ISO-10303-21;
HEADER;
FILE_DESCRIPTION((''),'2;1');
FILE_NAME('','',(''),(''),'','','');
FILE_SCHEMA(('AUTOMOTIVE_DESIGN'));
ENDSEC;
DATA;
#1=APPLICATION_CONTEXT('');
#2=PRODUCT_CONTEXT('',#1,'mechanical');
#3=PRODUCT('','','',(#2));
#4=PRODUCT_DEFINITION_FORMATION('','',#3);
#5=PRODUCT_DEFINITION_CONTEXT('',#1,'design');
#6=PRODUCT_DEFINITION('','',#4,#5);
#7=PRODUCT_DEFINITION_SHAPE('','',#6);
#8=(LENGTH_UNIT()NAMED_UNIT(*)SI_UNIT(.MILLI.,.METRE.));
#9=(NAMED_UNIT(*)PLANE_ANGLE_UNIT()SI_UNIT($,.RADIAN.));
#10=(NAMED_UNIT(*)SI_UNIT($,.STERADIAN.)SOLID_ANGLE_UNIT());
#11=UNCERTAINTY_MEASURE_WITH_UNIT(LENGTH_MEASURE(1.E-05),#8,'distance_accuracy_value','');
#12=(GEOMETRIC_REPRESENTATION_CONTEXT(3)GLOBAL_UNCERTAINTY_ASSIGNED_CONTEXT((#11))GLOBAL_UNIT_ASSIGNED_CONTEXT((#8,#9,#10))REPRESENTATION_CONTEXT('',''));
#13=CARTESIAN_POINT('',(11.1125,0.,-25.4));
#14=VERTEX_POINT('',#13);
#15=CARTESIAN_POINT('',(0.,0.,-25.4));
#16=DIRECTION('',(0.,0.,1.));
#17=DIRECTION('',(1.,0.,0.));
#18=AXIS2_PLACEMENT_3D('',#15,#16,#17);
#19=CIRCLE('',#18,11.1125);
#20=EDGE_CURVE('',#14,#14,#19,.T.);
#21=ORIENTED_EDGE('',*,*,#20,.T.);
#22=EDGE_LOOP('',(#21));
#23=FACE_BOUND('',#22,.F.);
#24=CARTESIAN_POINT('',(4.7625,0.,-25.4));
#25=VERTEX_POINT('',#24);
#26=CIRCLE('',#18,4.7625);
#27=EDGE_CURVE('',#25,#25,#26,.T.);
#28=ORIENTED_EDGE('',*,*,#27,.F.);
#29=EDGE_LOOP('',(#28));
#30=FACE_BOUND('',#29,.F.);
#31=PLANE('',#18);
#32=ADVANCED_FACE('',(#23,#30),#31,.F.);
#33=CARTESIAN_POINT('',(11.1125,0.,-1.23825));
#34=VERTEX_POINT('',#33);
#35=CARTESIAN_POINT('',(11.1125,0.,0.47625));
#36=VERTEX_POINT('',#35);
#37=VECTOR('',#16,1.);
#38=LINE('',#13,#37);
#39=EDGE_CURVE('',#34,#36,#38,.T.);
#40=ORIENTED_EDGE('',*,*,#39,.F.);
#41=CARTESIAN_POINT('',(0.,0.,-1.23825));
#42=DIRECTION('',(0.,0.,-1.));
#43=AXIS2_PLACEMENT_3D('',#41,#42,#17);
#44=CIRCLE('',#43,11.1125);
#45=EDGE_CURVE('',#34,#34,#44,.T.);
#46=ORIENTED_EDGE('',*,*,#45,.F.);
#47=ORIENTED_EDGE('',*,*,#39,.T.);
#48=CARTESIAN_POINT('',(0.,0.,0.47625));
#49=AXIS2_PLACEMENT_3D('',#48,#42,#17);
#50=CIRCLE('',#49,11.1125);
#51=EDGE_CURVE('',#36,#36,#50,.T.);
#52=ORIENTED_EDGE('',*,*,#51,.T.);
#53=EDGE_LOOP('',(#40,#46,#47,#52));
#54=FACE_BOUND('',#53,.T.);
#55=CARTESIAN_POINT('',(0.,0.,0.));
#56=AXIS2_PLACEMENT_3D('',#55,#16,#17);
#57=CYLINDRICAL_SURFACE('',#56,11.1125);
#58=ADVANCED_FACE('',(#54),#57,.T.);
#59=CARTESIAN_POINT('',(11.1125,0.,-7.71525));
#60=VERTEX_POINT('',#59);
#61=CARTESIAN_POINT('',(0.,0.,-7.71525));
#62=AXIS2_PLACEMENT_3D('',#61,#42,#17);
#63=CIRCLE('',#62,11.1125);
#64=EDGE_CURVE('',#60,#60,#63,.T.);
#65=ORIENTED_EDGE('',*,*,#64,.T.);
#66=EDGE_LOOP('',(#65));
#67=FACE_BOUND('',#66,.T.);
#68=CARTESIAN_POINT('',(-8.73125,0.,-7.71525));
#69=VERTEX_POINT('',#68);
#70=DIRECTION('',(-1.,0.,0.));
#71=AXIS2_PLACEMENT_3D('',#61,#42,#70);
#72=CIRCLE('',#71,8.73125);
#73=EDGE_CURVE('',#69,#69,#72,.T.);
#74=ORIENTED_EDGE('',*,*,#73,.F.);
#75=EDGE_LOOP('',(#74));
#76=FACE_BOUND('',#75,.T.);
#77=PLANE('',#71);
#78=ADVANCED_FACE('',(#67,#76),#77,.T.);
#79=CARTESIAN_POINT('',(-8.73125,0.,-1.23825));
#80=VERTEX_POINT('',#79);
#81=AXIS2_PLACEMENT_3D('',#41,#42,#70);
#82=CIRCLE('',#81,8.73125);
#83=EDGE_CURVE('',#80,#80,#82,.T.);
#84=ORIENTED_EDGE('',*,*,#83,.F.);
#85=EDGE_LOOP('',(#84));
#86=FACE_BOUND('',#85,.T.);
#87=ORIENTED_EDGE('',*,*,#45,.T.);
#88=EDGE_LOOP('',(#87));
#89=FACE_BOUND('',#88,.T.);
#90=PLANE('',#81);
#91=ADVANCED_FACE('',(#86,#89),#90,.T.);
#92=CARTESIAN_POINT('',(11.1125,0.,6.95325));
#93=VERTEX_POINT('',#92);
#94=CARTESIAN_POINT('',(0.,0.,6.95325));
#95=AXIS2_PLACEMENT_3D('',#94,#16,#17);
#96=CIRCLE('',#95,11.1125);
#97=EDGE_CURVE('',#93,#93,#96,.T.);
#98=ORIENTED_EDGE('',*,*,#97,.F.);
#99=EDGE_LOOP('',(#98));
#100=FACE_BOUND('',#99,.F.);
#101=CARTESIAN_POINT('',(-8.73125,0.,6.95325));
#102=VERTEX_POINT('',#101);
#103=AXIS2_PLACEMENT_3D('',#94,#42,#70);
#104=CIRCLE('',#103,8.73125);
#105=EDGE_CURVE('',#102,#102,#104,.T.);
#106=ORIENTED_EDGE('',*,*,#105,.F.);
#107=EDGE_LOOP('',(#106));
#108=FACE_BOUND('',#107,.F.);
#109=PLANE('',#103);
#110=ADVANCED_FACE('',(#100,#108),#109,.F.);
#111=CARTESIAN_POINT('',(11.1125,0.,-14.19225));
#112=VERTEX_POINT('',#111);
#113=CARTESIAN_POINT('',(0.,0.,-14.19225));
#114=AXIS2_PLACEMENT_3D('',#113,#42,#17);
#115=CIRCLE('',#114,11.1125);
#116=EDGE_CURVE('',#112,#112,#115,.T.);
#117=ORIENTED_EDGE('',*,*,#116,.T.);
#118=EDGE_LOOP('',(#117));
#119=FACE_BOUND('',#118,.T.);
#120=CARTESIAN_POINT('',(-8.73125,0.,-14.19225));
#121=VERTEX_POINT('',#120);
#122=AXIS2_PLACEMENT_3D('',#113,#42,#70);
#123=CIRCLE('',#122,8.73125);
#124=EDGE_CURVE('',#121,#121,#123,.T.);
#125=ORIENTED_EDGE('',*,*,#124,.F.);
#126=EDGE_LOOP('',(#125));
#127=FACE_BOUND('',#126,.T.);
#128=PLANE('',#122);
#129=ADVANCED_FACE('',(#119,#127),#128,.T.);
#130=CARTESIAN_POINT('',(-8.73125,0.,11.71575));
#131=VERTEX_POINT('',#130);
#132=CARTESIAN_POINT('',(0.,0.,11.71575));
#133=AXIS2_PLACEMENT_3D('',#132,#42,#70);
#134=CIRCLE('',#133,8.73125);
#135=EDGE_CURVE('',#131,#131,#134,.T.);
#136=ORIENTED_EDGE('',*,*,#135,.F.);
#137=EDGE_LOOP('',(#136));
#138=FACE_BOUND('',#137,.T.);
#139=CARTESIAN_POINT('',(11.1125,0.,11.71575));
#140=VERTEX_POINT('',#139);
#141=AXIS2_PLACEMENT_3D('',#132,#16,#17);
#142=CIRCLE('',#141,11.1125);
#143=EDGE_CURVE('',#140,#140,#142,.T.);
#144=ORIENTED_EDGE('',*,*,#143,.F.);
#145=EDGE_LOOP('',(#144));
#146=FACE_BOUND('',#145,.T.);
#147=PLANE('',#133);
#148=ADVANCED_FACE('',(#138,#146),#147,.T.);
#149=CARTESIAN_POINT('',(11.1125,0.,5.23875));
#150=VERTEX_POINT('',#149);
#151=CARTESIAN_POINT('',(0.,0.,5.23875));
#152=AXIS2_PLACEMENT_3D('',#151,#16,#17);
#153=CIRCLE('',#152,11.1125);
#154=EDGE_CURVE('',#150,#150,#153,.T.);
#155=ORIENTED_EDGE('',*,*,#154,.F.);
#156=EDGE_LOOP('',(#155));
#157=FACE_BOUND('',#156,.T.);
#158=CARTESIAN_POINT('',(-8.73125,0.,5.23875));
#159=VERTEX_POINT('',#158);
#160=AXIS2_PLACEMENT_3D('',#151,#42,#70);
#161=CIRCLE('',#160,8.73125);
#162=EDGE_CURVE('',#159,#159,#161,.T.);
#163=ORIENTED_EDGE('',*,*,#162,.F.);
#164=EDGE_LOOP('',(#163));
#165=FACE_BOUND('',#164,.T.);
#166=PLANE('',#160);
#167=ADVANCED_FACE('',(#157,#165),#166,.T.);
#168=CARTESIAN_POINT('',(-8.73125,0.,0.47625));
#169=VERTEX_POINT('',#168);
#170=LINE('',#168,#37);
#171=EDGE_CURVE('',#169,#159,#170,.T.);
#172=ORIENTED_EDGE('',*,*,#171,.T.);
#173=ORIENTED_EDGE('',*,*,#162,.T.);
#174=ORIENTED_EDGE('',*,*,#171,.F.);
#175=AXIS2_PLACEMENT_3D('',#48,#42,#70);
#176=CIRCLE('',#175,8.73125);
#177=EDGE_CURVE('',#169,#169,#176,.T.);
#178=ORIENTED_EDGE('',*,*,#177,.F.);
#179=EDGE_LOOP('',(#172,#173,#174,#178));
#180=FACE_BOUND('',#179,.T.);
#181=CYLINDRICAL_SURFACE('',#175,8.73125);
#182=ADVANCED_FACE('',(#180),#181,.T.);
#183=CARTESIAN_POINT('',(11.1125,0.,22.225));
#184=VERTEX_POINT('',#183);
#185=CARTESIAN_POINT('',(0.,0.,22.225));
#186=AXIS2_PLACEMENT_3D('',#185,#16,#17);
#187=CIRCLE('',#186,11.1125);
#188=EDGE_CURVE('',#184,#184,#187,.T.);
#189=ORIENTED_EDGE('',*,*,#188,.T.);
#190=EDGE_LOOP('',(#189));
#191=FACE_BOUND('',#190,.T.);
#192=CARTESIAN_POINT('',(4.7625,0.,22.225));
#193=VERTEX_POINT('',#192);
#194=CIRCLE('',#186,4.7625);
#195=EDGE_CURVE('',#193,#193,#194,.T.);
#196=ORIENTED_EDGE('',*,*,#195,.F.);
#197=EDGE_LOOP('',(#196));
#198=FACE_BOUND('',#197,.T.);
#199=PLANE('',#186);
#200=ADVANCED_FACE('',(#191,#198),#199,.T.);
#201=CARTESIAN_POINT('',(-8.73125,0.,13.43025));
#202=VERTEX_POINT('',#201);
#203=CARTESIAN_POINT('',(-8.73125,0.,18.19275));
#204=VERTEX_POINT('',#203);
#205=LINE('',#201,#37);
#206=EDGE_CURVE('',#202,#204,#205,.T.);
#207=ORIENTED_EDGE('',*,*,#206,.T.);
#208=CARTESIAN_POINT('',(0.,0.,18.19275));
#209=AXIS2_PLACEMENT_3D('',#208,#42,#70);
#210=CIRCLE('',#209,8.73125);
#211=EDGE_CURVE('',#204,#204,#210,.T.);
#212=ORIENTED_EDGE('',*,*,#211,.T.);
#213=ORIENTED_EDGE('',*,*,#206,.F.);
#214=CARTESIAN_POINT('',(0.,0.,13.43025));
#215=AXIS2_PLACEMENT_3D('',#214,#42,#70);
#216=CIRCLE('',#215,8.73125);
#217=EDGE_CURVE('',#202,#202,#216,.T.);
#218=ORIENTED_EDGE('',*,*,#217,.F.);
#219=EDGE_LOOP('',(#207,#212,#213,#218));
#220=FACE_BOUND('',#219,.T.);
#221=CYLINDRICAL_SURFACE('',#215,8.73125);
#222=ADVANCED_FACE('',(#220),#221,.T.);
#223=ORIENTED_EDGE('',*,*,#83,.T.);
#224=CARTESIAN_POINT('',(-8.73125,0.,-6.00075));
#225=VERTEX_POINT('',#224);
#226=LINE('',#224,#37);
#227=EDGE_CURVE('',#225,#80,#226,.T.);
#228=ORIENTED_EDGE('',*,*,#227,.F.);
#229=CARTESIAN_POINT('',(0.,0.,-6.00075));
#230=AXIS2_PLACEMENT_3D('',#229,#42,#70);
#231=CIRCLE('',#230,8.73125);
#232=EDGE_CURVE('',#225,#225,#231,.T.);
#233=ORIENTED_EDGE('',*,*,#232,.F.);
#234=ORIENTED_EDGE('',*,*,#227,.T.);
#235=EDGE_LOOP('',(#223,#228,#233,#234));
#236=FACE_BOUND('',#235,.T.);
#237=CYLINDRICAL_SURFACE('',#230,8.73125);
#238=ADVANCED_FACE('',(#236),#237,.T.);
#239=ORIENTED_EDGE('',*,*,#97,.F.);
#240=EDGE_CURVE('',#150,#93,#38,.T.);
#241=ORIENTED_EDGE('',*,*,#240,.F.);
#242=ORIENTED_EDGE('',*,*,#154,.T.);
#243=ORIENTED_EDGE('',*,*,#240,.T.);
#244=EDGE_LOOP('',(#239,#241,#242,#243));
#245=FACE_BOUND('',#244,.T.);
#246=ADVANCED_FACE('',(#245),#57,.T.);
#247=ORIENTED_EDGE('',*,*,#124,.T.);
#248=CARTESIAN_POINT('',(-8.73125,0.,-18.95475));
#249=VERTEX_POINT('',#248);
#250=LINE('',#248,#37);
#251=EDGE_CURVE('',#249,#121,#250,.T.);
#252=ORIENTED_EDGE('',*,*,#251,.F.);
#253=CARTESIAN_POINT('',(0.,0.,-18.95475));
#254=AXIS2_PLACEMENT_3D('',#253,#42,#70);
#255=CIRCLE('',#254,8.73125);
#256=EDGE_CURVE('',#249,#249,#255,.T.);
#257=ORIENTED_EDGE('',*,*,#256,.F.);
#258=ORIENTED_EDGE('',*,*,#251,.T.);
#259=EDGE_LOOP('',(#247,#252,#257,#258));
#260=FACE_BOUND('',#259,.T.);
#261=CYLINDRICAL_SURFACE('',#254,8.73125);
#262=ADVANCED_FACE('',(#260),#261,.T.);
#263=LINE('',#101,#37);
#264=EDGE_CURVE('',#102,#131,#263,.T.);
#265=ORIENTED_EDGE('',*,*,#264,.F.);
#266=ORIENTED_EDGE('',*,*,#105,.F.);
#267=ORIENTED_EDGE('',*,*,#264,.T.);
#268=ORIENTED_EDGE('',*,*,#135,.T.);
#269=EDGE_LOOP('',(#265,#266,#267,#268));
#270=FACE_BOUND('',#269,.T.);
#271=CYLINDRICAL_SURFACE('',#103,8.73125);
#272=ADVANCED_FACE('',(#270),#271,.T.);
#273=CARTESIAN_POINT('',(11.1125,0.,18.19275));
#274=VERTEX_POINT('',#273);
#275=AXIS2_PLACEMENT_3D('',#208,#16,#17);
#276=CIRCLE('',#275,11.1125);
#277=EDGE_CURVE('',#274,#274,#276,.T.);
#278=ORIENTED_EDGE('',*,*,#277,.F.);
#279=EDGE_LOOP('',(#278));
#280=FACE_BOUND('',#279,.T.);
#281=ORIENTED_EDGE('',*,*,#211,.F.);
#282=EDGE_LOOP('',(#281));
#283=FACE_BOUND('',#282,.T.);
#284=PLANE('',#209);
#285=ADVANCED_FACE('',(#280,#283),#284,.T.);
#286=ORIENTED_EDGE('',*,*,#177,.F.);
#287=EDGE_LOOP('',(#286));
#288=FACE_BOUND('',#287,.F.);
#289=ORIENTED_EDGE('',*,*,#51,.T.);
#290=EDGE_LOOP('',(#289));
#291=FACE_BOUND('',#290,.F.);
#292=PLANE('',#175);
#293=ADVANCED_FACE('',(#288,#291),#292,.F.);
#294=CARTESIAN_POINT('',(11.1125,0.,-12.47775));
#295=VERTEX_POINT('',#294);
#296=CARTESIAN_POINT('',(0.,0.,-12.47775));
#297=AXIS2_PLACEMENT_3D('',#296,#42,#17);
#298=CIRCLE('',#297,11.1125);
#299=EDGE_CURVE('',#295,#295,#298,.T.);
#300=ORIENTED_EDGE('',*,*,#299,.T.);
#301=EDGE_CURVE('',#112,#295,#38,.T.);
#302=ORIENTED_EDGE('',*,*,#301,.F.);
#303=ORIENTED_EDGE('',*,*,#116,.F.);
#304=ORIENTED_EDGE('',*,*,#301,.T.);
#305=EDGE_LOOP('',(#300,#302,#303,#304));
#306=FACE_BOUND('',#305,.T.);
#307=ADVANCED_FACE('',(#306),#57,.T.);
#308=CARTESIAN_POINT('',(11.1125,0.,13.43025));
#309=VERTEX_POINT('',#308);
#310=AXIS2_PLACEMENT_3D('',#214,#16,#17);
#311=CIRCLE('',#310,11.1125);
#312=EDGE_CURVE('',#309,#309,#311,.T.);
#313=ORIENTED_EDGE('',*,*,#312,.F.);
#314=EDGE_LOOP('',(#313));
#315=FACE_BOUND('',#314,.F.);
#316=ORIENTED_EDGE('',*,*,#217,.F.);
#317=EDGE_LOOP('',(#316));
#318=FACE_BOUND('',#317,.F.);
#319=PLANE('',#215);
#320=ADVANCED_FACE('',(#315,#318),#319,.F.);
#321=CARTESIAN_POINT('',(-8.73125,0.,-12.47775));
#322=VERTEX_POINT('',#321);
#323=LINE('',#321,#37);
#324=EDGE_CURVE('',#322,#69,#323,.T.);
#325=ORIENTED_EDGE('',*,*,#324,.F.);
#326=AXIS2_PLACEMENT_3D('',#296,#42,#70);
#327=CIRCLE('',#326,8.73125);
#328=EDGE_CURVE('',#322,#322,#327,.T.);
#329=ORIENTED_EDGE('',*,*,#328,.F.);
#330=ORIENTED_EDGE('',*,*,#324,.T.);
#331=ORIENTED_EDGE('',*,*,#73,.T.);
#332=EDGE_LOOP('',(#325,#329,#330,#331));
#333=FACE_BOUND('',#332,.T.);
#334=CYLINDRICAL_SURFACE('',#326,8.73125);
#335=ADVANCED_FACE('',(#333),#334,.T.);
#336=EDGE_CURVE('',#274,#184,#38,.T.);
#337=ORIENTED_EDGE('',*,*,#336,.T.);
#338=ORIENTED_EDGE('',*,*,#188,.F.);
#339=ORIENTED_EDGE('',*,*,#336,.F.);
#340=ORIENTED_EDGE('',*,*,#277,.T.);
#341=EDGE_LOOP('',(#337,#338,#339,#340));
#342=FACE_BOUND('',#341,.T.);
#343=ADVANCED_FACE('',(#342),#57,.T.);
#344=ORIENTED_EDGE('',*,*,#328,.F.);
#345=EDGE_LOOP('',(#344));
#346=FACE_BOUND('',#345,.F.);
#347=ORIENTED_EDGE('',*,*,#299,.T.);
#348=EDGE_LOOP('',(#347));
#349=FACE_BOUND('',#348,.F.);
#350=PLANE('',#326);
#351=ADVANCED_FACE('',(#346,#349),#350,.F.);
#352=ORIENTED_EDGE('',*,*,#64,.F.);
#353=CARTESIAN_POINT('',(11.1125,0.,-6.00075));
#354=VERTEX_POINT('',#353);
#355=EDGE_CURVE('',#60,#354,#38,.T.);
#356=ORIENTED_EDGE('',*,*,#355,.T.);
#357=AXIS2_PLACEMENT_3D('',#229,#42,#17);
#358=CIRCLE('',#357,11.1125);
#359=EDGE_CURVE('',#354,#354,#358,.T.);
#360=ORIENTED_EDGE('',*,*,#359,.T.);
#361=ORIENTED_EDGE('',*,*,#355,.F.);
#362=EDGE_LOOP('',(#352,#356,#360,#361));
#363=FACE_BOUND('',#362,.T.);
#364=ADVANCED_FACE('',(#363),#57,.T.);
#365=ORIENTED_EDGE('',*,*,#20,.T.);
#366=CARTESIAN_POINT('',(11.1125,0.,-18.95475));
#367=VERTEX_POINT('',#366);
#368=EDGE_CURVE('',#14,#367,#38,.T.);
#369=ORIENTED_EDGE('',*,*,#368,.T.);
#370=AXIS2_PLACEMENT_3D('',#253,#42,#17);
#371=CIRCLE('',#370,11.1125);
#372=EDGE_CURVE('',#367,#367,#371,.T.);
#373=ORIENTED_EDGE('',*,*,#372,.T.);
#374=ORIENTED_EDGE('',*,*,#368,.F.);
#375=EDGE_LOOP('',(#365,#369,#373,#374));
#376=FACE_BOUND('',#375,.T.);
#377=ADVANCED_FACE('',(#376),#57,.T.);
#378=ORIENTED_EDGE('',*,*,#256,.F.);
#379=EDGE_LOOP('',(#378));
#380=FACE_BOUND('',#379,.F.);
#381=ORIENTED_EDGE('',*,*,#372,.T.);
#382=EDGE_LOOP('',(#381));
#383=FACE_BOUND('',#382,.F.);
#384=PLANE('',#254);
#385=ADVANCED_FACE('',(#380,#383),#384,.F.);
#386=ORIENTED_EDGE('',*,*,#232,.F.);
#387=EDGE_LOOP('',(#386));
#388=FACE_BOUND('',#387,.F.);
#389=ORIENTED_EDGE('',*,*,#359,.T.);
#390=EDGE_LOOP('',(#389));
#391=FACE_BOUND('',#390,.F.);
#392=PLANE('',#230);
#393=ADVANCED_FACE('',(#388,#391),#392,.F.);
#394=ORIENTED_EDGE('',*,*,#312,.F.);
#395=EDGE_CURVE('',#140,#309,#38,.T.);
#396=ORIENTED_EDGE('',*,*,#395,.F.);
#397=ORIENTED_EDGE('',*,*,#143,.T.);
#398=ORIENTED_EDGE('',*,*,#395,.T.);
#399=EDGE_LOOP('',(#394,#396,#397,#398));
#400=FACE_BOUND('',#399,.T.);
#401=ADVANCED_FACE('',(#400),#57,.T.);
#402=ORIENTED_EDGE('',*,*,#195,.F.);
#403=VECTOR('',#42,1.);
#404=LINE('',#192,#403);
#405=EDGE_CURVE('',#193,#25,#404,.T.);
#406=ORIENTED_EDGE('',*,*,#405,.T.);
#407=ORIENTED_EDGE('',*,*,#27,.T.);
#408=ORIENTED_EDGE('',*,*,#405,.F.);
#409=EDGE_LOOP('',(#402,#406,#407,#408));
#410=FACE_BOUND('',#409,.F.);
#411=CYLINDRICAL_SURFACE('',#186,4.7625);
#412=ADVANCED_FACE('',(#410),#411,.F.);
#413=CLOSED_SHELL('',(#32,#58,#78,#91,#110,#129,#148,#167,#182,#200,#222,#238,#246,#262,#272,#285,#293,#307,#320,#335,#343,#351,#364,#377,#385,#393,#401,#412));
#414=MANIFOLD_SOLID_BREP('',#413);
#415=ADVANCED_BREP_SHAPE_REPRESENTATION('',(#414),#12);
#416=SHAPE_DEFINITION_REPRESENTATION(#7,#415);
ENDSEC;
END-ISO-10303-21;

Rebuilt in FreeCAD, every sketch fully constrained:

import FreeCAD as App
import Part
import Sketcher
from FreeCAD import Vector
Q = App.Units.Quantity

doc = App.newDocument("Part")
body = doc.addObject("PartDesign::Body", "Body")

sketch1 = doc.addObject("Sketcher::SketchObject", "Sketch")
body.addObject(sketch1)
sketch1.AttachmentSupport = (doc.XY_Plane, [""])
sketch1.MapMode = "FlatFace"
sketch1.addGeometry([
    Part.Circle(Vector(0, 0, 0), Vector(0, 0, 1), 11.1125),
    Part.Circle(Vector(0, 0, 0), Vector(0, 0, 1), 3.2004),
], False)
sketch1.addConstraint([
    Sketcher.Constraint("Coincident", 0, 3, -1, 1),
    Sketcher.Constraint("Coincident", 1, 3, -1, 1),
    Sketcher.Constraint("Diameter", 0, Q("0.875 in")),
    Sketcher.Constraint("Diameter", 1, Q("0.252 in")),
])
pad1 = doc.addObject("PartDesign::Pad", "Pad")
body.addObject(pad1)
pad1.Profile = sketch1
pad1.Length = Q("2 in")
pad1.Midplane = True

sketch2 = doc.addObject("Sketcher::SketchObject", "Sketch001")
body.addObject(sketch2)
sketch2.AttachmentSupport = (doc.XY_Plane, [""])
sketch2.MapMode = "FlatFace"
sketch2.AttachmentOffset = App.Placement(Vector(0, 0, 1 * 25.4), App.Rotation())
sketch2.addGeometry([
    Part.Circle(Vector(0, 0, 0), Vector(0, 0, 1), 11.1125),
    Part.Circle(Vector(0, 0, 0), Vector(0, 0, 1), 3.2004),
], False)
sketch2.addConstraint([
    Sketcher.Constraint("Coincident", 0, 3, -1, 1),
    Sketcher.Constraint("Coincident", 1, 3, -1, 1),
    Sketcher.Constraint("Diameter", 0, Q("0.875 in")),
    Sketcher.Constraint("Diameter", 1, Q("0.252 in")),
])
pocket1 = doc.addObject("PartDesign::Pocket", "Pocket")
body.addObject(pocket1)
pocket1.Profile = sketch2
pocket1.Length = Q("0.125 in")

sketch3 = doc.addObject("Sketcher::SketchObject", "Sketch002")
body.addObject(sketch3)
sketch3.AttachmentSupport = (doc.XY_Plane, [""])
sketch3.MapMode = "FlatFace"
sketch3.AttachmentOffset = App.Placement(Vector(0, 0, 0.875 * 25.4), App.Rotation())
sketch3.addGeometry(Part.Circle(Vector(0, 0, 0), Vector(0, 0, 1), 4.7625), False)
sketch3.addConstraint([
    Sketcher.Constraint("Coincident", 0, 3, -1, 1),
    Sketcher.Constraint("Diameter", 0, Q("0.375 in")),
])
pocket2 = doc.addObject("PartDesign::Pocket", "Pocket001")
body.addObject(pocket2)
pocket2.Profile = sketch3
pocket2.Type = "ThroughAll"

sketch4 = doc.addObject("Sketcher::SketchObject", "Sketch003")
body.addObject(sketch4)
sketch4.AttachmentSupport = (doc.XY_Plane, [""])
sketch4.MapMode = "FlatFace"
sketch4.AttachmentOffset = App.Placement(Vector(0, 0, -18.95475), App.Rotation())
sketch4.addGeometry([
    Part.Circle(Vector(0, 0, 0), Vector(0, 0, 1), 11.1125),
    Part.Circle(Vector(0, 0, 0), Vector(0, 0, 1), 8.73125),
], False)
sketch4.addConstraint([
    Sketcher.Constraint("Coincident", 0, 3, -1, 1),
    Sketcher.Constraint("Coincident", 1, 3, -1, 1),
    Sketcher.Constraint("Diameter", 0, Q("0.875 in")),
    Sketcher.Constraint("Diameter", 1, Q("0.6875 in")),
])
pocket3 = doc.addObject("PartDesign::Pocket", "Pocket002")
body.addObject(pocket3)
pocket3.Profile = sketch4
pocket3.Length = Q("0.1875 in")
pocket3.Reversed = True
doc.recompute()

linearpattern = doc.addObject("PartDesign::LinearPattern", "LinearPattern")
body.addObject(linearpattern)
linearpattern.Originals = [pocket3]
linearpattern.Direction = (doc.Z_Axis, [""])
linearpattern.Mode = "offset"
linearpattern.Offset = Q("0.255 in")
linearpattern.Occurrences = 6
body.Tip = linearpattern

doc.recompute()
